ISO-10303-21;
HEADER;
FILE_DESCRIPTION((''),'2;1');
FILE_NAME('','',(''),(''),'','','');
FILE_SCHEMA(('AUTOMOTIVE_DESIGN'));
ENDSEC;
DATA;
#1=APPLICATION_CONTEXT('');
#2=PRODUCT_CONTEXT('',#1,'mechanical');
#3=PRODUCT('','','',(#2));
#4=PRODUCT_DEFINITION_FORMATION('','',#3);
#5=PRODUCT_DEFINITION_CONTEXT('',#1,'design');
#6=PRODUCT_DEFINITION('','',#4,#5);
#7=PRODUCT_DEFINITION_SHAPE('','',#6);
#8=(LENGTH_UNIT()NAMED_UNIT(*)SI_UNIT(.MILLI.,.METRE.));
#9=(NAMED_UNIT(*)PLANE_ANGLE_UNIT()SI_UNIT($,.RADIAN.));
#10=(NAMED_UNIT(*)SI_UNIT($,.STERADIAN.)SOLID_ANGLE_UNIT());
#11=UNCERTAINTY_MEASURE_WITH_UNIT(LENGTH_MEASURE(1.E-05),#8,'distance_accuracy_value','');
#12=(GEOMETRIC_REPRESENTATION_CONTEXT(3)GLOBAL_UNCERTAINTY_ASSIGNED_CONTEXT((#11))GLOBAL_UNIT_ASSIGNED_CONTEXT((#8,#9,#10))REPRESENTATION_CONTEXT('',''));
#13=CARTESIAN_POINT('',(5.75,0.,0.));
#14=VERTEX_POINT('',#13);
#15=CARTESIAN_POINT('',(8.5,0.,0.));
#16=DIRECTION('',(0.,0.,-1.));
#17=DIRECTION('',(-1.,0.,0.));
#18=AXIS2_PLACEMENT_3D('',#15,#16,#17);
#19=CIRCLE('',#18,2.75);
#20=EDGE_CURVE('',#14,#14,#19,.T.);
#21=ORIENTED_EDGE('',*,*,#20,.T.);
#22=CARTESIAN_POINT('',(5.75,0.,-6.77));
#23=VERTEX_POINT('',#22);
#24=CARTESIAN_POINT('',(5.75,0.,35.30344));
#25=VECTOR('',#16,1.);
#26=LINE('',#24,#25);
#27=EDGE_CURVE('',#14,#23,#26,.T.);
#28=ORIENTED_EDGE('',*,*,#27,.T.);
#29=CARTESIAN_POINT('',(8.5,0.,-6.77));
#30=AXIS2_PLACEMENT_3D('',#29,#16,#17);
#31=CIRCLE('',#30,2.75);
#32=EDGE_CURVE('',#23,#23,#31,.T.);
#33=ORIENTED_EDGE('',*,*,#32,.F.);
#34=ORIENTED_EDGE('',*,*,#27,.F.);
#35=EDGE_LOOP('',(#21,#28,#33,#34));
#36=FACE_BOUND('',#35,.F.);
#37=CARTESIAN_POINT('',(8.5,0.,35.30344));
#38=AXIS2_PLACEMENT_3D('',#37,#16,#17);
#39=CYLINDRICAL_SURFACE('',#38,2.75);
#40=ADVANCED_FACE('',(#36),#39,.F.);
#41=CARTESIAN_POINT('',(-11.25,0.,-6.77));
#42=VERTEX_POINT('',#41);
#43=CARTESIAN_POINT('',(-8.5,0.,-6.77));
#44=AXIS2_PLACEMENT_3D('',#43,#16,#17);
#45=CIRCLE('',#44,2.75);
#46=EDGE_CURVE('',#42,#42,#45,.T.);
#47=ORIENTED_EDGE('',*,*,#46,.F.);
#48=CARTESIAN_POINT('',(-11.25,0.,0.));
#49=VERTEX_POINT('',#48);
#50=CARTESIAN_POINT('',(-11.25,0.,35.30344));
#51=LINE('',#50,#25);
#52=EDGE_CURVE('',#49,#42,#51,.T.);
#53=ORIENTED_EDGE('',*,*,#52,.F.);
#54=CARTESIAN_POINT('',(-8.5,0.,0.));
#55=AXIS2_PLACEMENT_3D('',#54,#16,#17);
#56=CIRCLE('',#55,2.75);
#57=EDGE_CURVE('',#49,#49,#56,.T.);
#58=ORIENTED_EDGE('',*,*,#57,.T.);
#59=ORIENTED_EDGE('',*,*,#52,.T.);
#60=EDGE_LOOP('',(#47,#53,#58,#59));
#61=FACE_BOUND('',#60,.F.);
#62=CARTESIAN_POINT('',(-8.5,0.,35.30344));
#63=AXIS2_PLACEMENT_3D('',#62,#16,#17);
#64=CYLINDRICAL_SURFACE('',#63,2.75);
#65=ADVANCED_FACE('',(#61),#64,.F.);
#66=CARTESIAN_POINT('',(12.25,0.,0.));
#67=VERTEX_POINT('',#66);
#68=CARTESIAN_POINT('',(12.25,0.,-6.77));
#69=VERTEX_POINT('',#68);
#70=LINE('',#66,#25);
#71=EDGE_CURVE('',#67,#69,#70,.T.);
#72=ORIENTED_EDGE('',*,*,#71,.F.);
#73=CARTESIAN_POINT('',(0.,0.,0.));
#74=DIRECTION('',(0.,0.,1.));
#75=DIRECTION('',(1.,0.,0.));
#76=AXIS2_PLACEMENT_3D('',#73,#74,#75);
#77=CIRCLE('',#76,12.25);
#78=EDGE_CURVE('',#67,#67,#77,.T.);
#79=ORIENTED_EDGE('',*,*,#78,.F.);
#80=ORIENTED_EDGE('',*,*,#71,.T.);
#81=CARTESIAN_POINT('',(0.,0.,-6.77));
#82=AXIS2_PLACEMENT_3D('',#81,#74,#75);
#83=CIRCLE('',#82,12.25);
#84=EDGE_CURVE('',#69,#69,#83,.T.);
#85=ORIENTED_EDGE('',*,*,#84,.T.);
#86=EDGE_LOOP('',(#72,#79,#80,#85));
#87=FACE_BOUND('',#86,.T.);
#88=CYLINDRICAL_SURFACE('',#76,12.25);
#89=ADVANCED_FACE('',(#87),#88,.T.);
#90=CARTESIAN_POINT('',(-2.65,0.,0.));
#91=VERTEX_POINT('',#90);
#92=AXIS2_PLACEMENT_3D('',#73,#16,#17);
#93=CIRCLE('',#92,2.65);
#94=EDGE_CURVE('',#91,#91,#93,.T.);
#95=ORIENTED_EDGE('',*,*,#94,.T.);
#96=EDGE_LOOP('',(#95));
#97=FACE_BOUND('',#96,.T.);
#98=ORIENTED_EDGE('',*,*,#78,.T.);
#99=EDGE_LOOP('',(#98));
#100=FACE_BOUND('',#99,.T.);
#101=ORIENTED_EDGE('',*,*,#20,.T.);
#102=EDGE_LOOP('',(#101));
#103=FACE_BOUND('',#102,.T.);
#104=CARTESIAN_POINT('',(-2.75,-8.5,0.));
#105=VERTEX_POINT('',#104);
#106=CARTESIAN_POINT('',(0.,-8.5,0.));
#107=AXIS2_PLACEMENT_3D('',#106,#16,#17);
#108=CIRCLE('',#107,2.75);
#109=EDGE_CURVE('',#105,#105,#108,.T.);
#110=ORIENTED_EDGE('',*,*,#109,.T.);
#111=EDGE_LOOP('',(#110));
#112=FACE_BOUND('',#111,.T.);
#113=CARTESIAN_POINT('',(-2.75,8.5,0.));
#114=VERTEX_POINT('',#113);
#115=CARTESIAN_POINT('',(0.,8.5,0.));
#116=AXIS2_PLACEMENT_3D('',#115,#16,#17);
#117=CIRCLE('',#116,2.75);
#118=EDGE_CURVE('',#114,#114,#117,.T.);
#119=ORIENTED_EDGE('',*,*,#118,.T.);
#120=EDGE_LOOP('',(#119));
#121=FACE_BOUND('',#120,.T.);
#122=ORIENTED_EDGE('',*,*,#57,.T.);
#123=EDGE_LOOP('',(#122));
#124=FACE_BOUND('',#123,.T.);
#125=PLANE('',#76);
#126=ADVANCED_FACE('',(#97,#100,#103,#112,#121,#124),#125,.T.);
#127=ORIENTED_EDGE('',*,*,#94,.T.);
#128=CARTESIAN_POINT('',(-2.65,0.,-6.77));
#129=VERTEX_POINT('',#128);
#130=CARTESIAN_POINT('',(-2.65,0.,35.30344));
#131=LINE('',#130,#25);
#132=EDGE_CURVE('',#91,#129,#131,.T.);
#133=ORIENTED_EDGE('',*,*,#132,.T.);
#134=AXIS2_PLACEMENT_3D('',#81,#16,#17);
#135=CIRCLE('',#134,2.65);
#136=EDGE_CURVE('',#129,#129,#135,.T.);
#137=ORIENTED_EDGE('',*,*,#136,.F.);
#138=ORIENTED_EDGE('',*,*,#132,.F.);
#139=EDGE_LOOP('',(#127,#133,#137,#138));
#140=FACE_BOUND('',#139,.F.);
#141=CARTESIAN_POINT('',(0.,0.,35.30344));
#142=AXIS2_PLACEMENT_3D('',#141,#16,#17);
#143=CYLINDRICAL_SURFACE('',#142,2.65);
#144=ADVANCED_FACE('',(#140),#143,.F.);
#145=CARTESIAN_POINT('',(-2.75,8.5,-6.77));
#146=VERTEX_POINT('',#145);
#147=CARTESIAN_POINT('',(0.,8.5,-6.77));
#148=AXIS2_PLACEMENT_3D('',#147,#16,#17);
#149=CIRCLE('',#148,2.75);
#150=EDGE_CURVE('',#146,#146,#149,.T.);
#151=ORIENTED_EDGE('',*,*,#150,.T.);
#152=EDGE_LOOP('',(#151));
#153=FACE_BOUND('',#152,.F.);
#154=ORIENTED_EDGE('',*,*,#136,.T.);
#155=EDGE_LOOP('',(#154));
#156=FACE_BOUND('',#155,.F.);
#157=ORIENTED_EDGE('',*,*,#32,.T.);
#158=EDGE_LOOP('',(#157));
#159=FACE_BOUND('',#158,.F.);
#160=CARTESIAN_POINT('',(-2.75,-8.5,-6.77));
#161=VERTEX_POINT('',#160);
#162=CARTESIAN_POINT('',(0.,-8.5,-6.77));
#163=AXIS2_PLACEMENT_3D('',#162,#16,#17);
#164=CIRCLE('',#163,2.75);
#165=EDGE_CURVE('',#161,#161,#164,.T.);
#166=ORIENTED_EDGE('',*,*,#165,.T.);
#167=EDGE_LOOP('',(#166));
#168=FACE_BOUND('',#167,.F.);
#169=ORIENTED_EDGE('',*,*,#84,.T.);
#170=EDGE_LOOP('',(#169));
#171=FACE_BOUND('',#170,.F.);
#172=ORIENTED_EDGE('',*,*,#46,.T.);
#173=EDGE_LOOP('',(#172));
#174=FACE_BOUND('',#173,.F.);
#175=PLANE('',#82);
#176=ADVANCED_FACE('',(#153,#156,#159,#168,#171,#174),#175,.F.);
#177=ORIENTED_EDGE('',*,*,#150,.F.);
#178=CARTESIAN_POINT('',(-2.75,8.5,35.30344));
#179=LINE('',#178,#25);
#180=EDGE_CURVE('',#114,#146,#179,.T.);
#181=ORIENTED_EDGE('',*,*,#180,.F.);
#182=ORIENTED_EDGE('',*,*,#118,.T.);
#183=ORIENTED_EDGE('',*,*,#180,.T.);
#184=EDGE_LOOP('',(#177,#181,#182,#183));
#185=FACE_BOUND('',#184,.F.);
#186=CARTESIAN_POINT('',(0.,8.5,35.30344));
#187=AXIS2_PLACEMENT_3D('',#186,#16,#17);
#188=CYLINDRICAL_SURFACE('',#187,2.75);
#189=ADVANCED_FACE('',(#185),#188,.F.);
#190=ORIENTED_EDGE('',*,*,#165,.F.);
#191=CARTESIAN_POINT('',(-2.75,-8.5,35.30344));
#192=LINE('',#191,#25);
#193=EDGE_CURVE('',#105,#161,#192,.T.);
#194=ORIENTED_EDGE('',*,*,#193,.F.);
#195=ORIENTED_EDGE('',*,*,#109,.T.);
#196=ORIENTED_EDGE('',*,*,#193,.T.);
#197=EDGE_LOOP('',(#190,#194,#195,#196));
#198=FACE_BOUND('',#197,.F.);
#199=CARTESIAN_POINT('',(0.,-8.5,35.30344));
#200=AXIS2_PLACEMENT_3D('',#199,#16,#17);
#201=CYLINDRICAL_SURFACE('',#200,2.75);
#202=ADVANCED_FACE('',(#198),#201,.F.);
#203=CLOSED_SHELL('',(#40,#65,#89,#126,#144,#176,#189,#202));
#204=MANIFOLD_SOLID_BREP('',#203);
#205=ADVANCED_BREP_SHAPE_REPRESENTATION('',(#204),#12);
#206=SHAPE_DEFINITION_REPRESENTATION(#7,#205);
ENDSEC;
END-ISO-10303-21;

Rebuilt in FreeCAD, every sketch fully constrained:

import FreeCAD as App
import Part
import Sketcher

doc = App.newDocument("Part")
body = doc.addObject("PartDesign::Body", "Body")

sketch1 = body.newObject("Sketcher::SketchObject", "Sketch")
sketch1.AttachmentSupport = (doc.getObject("XY_Plane"), [""])
sketch1.MapMode = "FlatFace"
sketch1.addGeometry(Part.Circle(App.Vector(0, 0, 0), App.Vector(0, 0, 1), 12), False)
sketch1.addConstraint(Sketcher.Constraint("Coincident", 0, 3, -1, 1))
sketch1.addConstraint(Sketcher.Constraint("Diameter", 0, 24.5))
pad1 = body.newObject("PartDesign::Pad", "Pad")
pad1.Profile = sketch1
pad1.Length = 6.77
pad1.Reversed = True

sketch2 = body.newObject("Sketcher::SketchObject", "Sketch001")
sketch2.AttachmentSupport = (doc.getObject("XY_Plane"), [""])
sketch2.MapMode = "FlatFace"
sketch2.addGeometry(Part.Circle(App.Vector(0, 8.5, 0), App.Vector(0, 0, 1), 2.8), False)
sketch2.addGeometry(Part.Circle(App.Vector(-8.5, 0, 0), App.Vector(0, 0, 1), 2.8), False)
sketch2.addGeometry(Part.Circle(App.Vector(0, -8.5, 0), App.Vector(0, 0, 1), 2.8), False)
sketch2.addGeometry(Part.Circle(App.Vector(8.5, 0, 0), App.Vector(0, 0, 1), 2.8), False)
sketch2.addConstraint(Sketcher.Constraint("Equal", 0, 1))
sketch2.addConstraint(Sketcher.Constraint("Equal", 1, 2))
sketch2.addConstraint(Sketcher.Constraint("Equal", 2, 3))
sketch2.addConstraint(Sketcher.Constraint("Symmetric", 0, 3, 2, 3, -1, 1))
sketch2.addConstraint(Sketcher.Constraint("Symmetric", 1, 3, 3, 3, -1, 1))
sketch2.addConstraint(Sketcher.Constraint("PointOnObject", 0, 3, -2))
sketch2.addConstraint(Sketcher.Constraint("PointOnObject", 1, 3, -1))
sketch2.addConstraint(Sketcher.Constraint("Diameter", 0, 5.5))
sketch2.addConstraint(Sketcher.Constraint("DistanceY", 2, 3, 0, 3, 17.0))
sketch2.addConstraint(Sketcher.Constraint("DistanceX", 1, 3, 3, 3, 17.0))
doc.recompute()
hole = body.newObject("PartDesign::Hole", "Hole")
hole.Profile = sketch2
hole.ThreadType = "None"
hole.Diameter = 5.5
hole.DepthType = "ThroughAll"

sketch3 = body.newObject("Sketcher::SketchObject", "Sketch002")
sketch3.AttachmentSupport = (doc.getObject("XY_Plane"), [""])
sketch3.MapMode = "FlatFace"
sketch3.addGeometry(Part.Circle(App.Vector(0, 0, 0), App.Vector(0, 0, 1), 2.6), False)
sketch3.addConstraint(Sketcher.Constraint("Coincident", 0, 3, -1, 1))
sketch3.addConstraint(Sketcher.Constraint("Diameter", 0, 5.3))
doc.recompute()
hole2 = body.newObject("PartDesign::Hole", "Hole001")
hole2.Profile = sketch3
hole2.ThreadType = "None"
hole2.Diameter = 5.3
hole2.DepthType = "ThroughAll"

doc.recompute()
